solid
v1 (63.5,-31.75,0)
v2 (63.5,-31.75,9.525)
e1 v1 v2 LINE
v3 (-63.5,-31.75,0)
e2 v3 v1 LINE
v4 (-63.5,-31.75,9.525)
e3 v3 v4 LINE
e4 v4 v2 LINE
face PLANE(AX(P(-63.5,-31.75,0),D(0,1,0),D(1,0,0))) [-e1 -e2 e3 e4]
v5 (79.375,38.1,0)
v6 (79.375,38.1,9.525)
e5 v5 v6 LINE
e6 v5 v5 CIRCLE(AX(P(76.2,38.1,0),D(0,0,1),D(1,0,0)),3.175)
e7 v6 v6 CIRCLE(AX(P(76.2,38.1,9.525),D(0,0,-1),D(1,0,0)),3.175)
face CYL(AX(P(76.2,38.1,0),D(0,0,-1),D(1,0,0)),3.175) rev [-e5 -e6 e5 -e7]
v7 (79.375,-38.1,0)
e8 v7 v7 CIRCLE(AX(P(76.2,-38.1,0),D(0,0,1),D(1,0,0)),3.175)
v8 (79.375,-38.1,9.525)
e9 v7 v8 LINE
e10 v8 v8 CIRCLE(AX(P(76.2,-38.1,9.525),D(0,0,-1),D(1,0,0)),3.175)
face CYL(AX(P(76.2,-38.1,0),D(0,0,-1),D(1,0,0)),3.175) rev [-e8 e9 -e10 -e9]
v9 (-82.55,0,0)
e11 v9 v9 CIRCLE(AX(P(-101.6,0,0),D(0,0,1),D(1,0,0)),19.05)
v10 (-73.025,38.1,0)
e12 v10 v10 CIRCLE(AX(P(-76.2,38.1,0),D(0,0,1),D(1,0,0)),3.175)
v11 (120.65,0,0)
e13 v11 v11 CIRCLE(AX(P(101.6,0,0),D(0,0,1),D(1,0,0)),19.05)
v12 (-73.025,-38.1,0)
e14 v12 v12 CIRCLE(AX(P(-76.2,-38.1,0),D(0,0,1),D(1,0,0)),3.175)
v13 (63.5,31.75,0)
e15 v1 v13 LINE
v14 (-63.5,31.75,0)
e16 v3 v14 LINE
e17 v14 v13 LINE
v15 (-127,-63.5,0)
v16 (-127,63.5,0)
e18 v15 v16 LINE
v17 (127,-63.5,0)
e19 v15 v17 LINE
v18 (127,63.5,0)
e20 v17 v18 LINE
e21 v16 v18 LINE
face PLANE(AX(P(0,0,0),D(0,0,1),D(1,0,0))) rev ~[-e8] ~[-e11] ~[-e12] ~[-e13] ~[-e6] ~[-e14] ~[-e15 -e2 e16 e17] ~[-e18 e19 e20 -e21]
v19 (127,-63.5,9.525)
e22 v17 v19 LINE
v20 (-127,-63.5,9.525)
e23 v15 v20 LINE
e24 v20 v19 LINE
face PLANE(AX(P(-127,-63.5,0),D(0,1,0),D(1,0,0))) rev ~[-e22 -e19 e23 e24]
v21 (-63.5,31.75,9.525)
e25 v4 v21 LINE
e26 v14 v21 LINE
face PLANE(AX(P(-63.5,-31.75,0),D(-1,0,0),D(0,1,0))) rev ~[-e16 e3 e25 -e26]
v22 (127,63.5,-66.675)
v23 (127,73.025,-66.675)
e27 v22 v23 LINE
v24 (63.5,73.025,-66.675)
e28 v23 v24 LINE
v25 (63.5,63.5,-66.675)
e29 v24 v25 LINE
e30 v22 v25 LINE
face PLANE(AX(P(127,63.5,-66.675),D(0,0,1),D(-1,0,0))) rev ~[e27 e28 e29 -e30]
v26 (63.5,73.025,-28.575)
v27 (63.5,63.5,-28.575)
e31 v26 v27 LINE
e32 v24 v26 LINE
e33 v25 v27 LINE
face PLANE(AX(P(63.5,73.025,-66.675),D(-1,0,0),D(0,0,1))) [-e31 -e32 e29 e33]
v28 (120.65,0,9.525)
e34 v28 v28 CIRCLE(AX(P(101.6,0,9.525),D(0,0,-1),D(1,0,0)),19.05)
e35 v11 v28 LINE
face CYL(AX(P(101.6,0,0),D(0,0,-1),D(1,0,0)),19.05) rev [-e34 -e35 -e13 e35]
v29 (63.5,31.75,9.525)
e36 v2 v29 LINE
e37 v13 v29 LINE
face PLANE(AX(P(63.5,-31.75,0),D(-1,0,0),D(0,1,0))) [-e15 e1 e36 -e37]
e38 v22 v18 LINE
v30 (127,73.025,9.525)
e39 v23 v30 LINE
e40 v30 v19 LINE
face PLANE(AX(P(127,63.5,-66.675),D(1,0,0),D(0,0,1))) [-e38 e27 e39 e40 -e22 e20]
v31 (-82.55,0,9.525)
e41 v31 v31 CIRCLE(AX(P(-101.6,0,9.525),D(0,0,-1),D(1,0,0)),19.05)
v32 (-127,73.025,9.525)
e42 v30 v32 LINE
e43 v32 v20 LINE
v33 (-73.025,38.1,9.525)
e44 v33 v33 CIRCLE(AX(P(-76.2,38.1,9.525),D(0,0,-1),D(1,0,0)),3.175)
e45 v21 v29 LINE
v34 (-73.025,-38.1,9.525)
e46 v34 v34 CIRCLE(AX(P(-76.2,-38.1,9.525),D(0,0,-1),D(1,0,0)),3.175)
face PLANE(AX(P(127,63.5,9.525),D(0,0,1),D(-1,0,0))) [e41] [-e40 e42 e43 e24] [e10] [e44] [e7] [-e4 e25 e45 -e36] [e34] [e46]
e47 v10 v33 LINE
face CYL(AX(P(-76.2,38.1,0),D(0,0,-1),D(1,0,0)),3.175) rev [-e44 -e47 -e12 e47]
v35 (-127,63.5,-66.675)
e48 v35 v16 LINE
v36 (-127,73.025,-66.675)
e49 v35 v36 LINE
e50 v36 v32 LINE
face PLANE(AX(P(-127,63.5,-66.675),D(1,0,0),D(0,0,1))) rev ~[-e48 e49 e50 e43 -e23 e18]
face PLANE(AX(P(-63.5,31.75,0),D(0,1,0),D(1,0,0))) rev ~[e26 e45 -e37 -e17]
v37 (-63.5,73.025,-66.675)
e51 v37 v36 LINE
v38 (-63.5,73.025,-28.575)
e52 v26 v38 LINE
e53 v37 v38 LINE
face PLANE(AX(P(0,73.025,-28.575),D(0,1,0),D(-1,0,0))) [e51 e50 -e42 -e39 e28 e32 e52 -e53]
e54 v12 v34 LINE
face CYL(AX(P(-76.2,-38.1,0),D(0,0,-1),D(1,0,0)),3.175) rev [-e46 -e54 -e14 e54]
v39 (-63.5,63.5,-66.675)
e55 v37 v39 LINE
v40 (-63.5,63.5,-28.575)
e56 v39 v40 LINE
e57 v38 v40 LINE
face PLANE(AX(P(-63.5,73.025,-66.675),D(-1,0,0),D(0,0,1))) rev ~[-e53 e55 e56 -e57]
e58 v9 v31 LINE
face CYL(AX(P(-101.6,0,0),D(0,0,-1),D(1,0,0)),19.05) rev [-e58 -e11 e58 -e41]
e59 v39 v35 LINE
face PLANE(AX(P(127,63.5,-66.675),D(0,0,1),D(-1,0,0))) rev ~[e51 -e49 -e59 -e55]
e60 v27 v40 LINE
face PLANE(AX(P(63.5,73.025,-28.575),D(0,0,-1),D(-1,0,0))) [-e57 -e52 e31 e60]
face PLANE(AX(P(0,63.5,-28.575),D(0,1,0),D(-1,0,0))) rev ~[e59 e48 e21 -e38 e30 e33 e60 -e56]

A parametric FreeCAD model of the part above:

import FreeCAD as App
import Part
import Sketcher

V = App.Vector
Q = App.Units.Quantity


def add_polygon(sketch, points):
    """Adds a closed chain of lines whose ends are joined by coincident constraints."""
    first, n = sketch.GeometryCount, len(points)
    for a, b in zip(points, points[1:] + points[:1]):
        sketch.addGeometry(Part.LineSegment(App.Vector(*a, 0), App.Vector(*b, 0)), False)
    for i in range(n):
        sketch.addConstraint(Sketcher.Constraint("Coincident", first + i, 2, first + (i + 1) % n, 1))

doc = App.newDocument("Part")
body = doc.addObject("PartDesign::Body", "Body")

sketch1 = body.newObject("Sketcher::SketchObject", "Sketch")
sketch1.AttachmentSupport = (doc.getObject("XY_Plane"), [""])
sketch1.MapMode = "FlatFace"
add_polygon(sketch1, [(-127, 64), (-127, -64), (127, -64), (127, 64)])
add_polygon(sketch1, [(64, -32), (-64, -32), (-64, 32), (64, 32)])
sketch1.addConstraint([
    Sketcher.Constraint("Vertical", 0),
    Sketcher.Constraint("Horizontal", 1),
    Sketcher.Constraint("Vertical", 2),
    Sketcher.Constraint("Horizontal", 3),
    Sketcher.Constraint("Horizontal", 4),
    Sketcher.Constraint("Vertical", 5),
    Sketcher.Constraint("Horizontal", 6),
    Sketcher.Constraint("Vertical", 7),
    Sketcher.Constraint("Symmetric", 0, 2, 2, 2, -1, 1),
    Sketcher.Constraint("Symmetric", 4, 2, 6, 2, -1, 1),
    Sketcher.Constraint("Equal", 6, 0),
    Sketcher.Constraint("DistanceX", 1, 1, 1, 2, Q("10 in")),
    Sketcher.Constraint("DistanceX", 4, 2, 4, 1, Q("5 in")),
    Sketcher.Constraint("DistanceY", 5, 1, 5, 2, Q("2.5 in")),
])
pad1 = body.newObject("PartDesign::Pad", "Pad")
pad1.Profile = sketch1
pad1.Length = Q("0.375 in")

sketch2 = body.newObject("Sketcher::SketchObject", "Sketch001")
sketch2.AttachmentSupport = (doc.getObject("XY_Plane"), [""])
sketch2.MapMode = "FlatFace"
sketch2.addGeometry([
    Part.Circle(V(-76.2, 38.1, 0), V(0, 0, 1), 3.2),
    Part.Circle(V(76.2, 38.1, 0), V(0, 0, 1), 3.2),
    Part.Circle(V(-76.2, -38.1, 0), V(0, 0, 1), 3.2),
    Part.Circle(V(76.2, -38.1, 0), V(0, 0, 1), 3.2),
], False)
sketch2.addConstraint([
    Sketcher.Constraint("Equal", 0, 1),
    Sketcher.Constraint("Equal", 1, 2),
    Sketcher.Constraint("Equal", 2, 3),
    Sketcher.Constraint("Symmetric", 1, 3, 2, 3, -1, 1),
    Sketcher.Constraint("Symmetric", 0, 3, 3, 3, -1, 1),
    Sketcher.Constraint("Symmetric", 0, 3, 1, 3, -2),
    Sketcher.Constraint("Diameter", 0, Q("0.25 in")),
    Sketcher.Constraint("DistanceX", 0, 3, -1, 1, Q("3 in")),
    Sketcher.Constraint("DistanceY", 2, 3, 0, 3, Q("3 in")),
])
pocket1 = body.newObject("PartDesign::Pocket", "Pocket")
pocket1.Profile = sketch2
pocket1.Length = Q("375 in")
pocket1.Reversed = True

sketch3 = body.newObject("Sketcher::SketchObject", "Sketch002")
sketch3.AttachmentSupport = (doc.getObject("XY_Plane"), [""])
sketch3.MapMode = "FlatFace"
sketch3.addGeometry([
    Part.Circle(V(-102, 0, 0), V(0, 0, 1), 19),
    Part.Circle(V(102, 0, 0), V(0, 0, 1), 19),
], False)
sketch3.addConstraint([
    Sketcher.Constraint("Equal", 0, 1),
    Sketcher.Constraint("Symmetric", 0, 3, 1, 3, -1, 1),
    Sketcher.Constraint("PointOnObject", 0, 3, -1),
    Sketcher.Constraint("Diameter", 0, Q("1.5 in")),
    Sketcher.Constraint("DistanceX", 0, 3, -1, 1, Q("4 in")),
])
pocket2 = body.newObject("PartDesign::Pocket", "Pocket001")
pocket2.Profile = sketch3
pocket2.Type = "ThroughAll"
pocket2.Reversed = True

sketch4 = body.newObject("Sketcher::SketchObject", "Sketch003")
sketch4.AttachmentSupport = (doc.getObject("XZ_Plane"), [""])
sketch4.MapMode = "FlatFace"
sketch4.AttachmentOffset = App.Placement(V(0, 0, -2.5 * 25.4), App.Rotation())
add_polygon(sketch4, [(127, 10), (127, -67), (-127, -67), (-127, 10)])
sketch4.addConstraint([
    Sketcher.Constraint("Vertical", 0),
    Sketcher.Constraint("Horizontal", 1),
    Sketcher.Constraint("Vertical", 2),
    Sketcher.Constraint("Horizontal", 3),
    Sketcher.Constraint("DistanceX", 1, 2, 1, 1, Q("10 in")),
    Sketcher.Constraint("DistanceY", 0, 2, 0, 1, Q("3 in")),
    Sketcher.Constraint("DistanceX", -1, 1, 0, 2, Q("5 in")),
    Sketcher.Constraint("DistanceY", 0, 2, -1, 1, Q("2.625 in")),
])
pad2 = body.newObject("PartDesign::Pad", "Pad001")
pad2.Profile = sketch4
pad2.Length = Q("0.375 in")
pad2.Reversed = True

sketch5 = body.newObject("Sketcher::SketchObject", "Sketch004")
sketch5.AttachmentSupport = (doc.getObject("XZ_Plane"), [""])
sketch5.MapMode = "FlatFace"
sketch5.AttachmentOffset = App.Placement(V(0, 0, -2.875 * 25.4), App.Rotation())
add_polygon(sketch5, [(64, -29), (64, -67), (-64, -67), (-64, -29)])
sketch5.addConstraint([
    Sketcher.Constraint("Vertical", 0),
    Sketcher.Constraint("Horizontal", 1),
    Sketcher.Constraint("Vertical", 2),
    Sketcher.Constraint("Horizontal", 3),
    Sketcher.Constraint("DistanceX", 1, 2, 1, 1, Q("5 in")),
    Sketcher.Constraint("DistanceY", 0, 2, 0, 1, Q("1.5 in")),
    Sketcher.Constraint("DistanceX", -1, 1, 0, 2, Q("2.5 in")),
    Sketcher.Constraint("DistanceY", 0, 2, -1, 1, Q("2.625 in")),
])
pocket3 = body.newObject("PartDesign::Pocket", "Pocket002")
pocket3.Profile = sketch5
pocket3.Type = "ThroughAll"
pocket3.Reversed = True

doc.recompute()
